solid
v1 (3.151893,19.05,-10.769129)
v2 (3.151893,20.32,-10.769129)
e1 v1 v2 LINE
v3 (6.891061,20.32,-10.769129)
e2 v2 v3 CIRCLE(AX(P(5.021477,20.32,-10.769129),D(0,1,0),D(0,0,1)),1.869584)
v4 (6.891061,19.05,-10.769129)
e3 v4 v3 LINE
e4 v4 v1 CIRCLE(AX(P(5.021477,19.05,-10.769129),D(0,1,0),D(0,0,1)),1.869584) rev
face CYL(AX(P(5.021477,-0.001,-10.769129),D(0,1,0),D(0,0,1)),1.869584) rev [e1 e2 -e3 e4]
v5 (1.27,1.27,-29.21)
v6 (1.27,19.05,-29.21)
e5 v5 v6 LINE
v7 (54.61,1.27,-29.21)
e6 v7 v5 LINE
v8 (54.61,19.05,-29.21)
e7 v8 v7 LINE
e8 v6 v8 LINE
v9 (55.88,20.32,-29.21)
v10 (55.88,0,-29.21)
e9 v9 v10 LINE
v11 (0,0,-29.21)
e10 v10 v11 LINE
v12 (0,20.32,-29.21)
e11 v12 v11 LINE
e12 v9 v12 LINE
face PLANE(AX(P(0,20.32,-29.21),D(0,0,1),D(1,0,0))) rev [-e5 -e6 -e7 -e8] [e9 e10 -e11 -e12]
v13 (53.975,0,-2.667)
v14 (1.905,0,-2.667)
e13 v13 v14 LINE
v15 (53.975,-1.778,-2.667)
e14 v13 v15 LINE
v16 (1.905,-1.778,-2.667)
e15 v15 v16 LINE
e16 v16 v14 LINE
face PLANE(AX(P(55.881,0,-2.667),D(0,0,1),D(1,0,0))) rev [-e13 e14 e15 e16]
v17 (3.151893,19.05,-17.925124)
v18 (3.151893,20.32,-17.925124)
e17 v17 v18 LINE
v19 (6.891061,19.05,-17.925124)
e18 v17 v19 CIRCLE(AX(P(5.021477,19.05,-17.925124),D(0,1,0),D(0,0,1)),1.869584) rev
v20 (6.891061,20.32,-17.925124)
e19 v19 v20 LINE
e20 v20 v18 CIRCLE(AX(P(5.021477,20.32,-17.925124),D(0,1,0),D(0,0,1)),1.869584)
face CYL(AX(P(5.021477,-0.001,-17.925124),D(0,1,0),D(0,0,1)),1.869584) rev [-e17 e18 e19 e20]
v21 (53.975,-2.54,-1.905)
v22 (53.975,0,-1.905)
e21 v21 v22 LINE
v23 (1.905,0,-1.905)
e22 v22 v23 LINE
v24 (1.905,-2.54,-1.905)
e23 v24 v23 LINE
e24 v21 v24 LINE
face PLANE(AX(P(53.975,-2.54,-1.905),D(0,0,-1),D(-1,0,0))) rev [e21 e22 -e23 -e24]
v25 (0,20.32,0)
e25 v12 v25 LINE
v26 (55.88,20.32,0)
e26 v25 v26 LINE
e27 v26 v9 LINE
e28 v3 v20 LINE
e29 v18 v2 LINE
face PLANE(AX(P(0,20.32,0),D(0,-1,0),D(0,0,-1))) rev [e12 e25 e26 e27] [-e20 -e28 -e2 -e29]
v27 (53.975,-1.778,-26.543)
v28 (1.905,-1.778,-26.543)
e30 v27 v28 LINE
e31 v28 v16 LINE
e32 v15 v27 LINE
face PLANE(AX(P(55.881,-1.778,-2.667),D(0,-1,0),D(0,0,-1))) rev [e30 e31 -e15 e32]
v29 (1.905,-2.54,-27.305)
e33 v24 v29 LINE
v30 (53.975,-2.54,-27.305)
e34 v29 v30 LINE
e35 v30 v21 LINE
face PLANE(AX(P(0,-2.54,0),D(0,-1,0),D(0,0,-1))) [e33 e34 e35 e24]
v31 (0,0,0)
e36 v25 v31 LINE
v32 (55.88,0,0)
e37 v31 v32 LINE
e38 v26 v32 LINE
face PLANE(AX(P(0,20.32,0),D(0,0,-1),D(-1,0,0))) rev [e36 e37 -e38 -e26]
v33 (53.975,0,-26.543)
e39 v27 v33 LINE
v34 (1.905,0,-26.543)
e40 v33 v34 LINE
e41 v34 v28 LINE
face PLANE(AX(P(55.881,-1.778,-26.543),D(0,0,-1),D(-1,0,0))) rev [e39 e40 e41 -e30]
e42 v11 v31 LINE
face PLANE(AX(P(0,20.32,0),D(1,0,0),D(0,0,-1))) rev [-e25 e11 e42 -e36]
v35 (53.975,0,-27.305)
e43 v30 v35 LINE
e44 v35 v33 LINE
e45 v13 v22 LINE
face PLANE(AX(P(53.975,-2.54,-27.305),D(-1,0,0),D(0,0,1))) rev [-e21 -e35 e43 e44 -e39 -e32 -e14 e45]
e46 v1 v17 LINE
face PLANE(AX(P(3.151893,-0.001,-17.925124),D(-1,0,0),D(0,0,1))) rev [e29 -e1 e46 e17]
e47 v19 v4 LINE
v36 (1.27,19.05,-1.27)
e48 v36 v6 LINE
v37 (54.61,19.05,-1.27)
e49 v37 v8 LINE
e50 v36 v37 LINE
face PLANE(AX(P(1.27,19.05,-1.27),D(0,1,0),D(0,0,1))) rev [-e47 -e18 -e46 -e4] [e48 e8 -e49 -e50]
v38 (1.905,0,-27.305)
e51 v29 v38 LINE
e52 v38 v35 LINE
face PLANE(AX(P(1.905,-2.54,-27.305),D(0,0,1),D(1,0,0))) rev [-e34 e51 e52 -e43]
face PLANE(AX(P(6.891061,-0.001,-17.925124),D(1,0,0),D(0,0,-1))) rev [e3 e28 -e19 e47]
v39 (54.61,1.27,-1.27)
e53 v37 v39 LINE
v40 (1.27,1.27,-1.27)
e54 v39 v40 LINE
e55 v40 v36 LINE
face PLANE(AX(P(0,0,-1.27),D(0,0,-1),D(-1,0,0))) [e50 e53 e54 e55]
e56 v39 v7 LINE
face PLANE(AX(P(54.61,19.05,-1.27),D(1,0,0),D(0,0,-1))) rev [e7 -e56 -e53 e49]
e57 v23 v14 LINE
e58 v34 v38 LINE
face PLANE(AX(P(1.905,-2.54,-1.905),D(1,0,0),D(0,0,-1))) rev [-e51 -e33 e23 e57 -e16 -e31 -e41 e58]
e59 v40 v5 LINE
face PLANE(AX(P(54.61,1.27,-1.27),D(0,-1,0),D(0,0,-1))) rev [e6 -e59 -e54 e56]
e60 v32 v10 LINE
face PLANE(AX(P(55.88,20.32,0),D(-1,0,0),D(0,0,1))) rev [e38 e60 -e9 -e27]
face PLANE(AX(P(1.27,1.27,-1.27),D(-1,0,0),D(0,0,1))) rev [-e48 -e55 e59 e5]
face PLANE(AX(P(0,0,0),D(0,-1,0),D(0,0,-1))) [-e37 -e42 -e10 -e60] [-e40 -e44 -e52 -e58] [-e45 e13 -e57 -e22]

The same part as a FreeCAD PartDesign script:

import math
import FreeCAD as App
import Part
import Sketcher
from FreeCAD import Vector
Q = App.Units.Quantity

doc = App.newDocument("Part")
params = doc.addObject("Spreadsheet::Sheet", "Params")
for row, (alias, value) in enumerate([
    ("sketch1_width", "2.2 in"),
    ("sketch1_height", "1.15 in"),
    ("pad1_length", "0.8 in"),
    ("sketch2_width", "2.1 in"),
    ("sketch2_height", "0.7 in"),
    ("pocket1_length", "1.1 in"),
    ("sketch4_height", "1 in"),
    ("sketch4_width", "2.05 in"),
    ("pad2_length", "0.1 in"),
    ("sketch5_width", "0.07 in"),
    ("sketch5_height", "0.94 in"),
], start=1):
    params.set(f"A{row}", alias)
    params.set(f"B{row}", "=" + value)
    params.setAlias(f"B{row}", alias)

body = doc.addObject("PartDesign::Body", "Body")

sketch1 = body.newObject("Sketcher::SketchObject", "Sketch")
sketch1.AttachmentSupport = (doc.getObject("XZ_Plane"), [""])
sketch1.MapMode = "FlatFace"
sketch1.addGeometry([
    Part.LineSegment(Vector(0, -29, 0), Vector(0, 0, 0)),
    Part.LineSegment(Vector(0, 0, 0), Vector(56, 0, 0)),
    Part.LineSegment(Vector(56, 0, 0), Vector(56, -29, 0)),
    Part.LineSegment(Vector(56, -29, 0), Vector(0, -29, 0)),
], False)
sketch1.addConstraint([
    Sketcher.Constraint("Coincident", 0, 2, 1, 1),
    Sketcher.Constraint("Coincident", 1, 2, 2, 1),
    Sketcher.Constraint("Coincident", 2, 2, 3, 1),
    Sketcher.Constraint("Coincident", 3, 2, 0, 1),
    Sketcher.Constraint("Vertical", 0),
    Sketcher.Constraint("Horizontal", 1),
    Sketcher.Constraint("Vertical", 2),
    Sketcher.Constraint("Horizontal", 3),
    Sketcher.Constraint("Coincident", 0, 2, -1, 1),
    Sketcher.Constraint("DistanceX", 1, 1, 1, 2, Q("2.2 in")),
    Sketcher.Constraint("DistanceY", 0, 1, 0, 2, Q("1.15 in")),
])
sketch1.setExpression("Constraints[9]", "Params.sketch1_width")
sketch1.setExpression("Constraints[10]", "Params.sketch1_height")
pad1 = body.newObject("PartDesign::Pad", "Pad")
pad1.Profile = sketch1
pad1.setExpression("Length", "Params.pad1_length")
pad1.Reversed = True

sketch2 = body.newObject("Sketcher::SketchObject", "Sketch001")
sketch2.AttachmentSupport = (doc.getObject("XY_Plane"), [""])
sketch2.MapMode = "FlatFace"
sketch2.AttachmentOffset = App.Placement(Vector(0, 0, -1.15 * 25.4), App.Rotation())
sketch2.addGeometry([
    Part.LineSegment(Vector(55, 19, 0), Vector(55, 1, 0)),
    Part.LineSegment(Vector(55, 1, 0), Vector(1, 1, 0)),
    Part.LineSegment(Vector(1, 1, 0), Vector(1, 19, 0)),
    Part.LineSegment(Vector(1, 19, 0), Vector(55, 19, 0)),
], False)
sketch2.addConstraint([
    Sketcher.Constraint("Coincident", 0, 2, 1, 1),
    Sketcher.Constraint("Coincident", 1, 2, 2, 1),
    Sketcher.Constraint("Coincident", 2, 2, 3, 1),
    Sketcher.Constraint("Coincident", 3, 2, 0, 1),
    Sketcher.Constraint("Vertical", 0),
    Sketcher.Constraint("Horizontal", 1),
    Sketcher.Constraint("Vertical", 2),
    Sketcher.Constraint("Horizontal", 3),
    Sketcher.Constraint("DistanceX", 1, 2, 1, 1, Q("2.1 in")),
    Sketcher.Constraint("DistanceY", 0, 2, 0, 1, Q("0.7 in")),
    Sketcher.Constraint("DistanceX", -1, 1, 0, 2, Q("2.15 in")),
    Sketcher.Constraint("DistanceY", -1, 1, 0, 2, Q("0.05 in")),
])
sketch2.setExpression("Constraints[8]", "Params.sketch2_width")
sketch2.setExpression("Constraints[9]", "Params.sketch2_height")
pocket1 = body.newObject("PartDesign::Pocket", "Pocket")
pocket1.Profile = sketch2
pocket1.setExpression("Length", "Params.pocket1_length")
pocket1.Reversed = True

sketch3 = body.newObject("Sketcher::SketchObject", "Sketch002")
sketch3.AttachmentSupport = (doc.getObject("XZ_Plane"), [""])
sketch3.MapMode = "FlatFace"
sketch3.AttachmentOffset = App.Placement(Vector(0, 0, -0.8 * 25.4), App.Rotation())
sketch3.addGeometry([
    Part.LineSegment(Vector(6.9, -10.8, 0), Vector(6.9, -17.9, 0)),
    Part.ArcOfCircle(Part.Circle(Vector(5, -17.9, 0), Vector(0, 0, 1), 1.9), math.radians(180), math.radians(360)),
    Part.LineSegment(Vector(3.2, -17.9, 0), Vector(3.2, -10.8, 0)),
    Part.ArcOfCircle(Part.Circle(Vector(5, -10.8, 0), Vector(0, 0, 1), 1.9), math.radians(0), math.radians(180)),
], False)
sketch3.addConstraint([
    Sketcher.Constraint("Tangent", 0, 2, 1, 2),
    Sketcher.Constraint("Tangent", 1, 1, 2, 1),
    Sketcher.Constraint("Tangent", 2, 2, 3, 2),
    Sketcher.Constraint("Tangent", 3, 1, 0, 1),
    Sketcher.Constraint("Vertical", 0),
    Sketcher.Constraint("Vertical", 2),
    Sketcher.Constraint("Radius", 1, 1.869584),
    Sketcher.Constraint("DistanceY", 0, 2, 0, 1, 7.155995),
    Sketcher.Constraint("DistanceY", 3, 3, -1, 1, 10.769129),
    Sketcher.Constraint("DistanceX", -1, 1, 0, 2, 6.891061),
])
pocket2 = body.newObject("PartDesign::Pocket", "Pocket001")
pocket2.Profile = sketch3
pocket2.Type = "UpToFirst"
pocket2.Reversed = True

sketch4 = body.newObject("Sketcher::SketchObject", "Sketch003")
sketch4.AttachmentSupport = (doc.getObject("XZ_Plane"), [""])
sketch4.MapMode = "FlatFace"
sketch4.addGeometry([
    Part.LineSegment(Vector(2, -2, 0), Vector(2, -27, 0)),
    Part.LineSegment(Vector(2, -27, 0), Vector(54, -27, 0)),
    Part.LineSegment(Vector(54, -27, 0), Vector(54, -2, 0)),
    Part.LineSegment(Vector(54, -2, 0), Vector(2, -2, 0)),
], False)
sketch4.addConstraint([
    Sketcher.Constraint("Coincident", 0, 2, 1, 1),
    Sketcher.Constraint("Coincident", 1, 2, 2, 1),
    Sketcher.Constraint("Coincident", 2, 2, 3, 1),
    Sketcher.Constraint("Coincident", 3, 2, 0, 1),
    Sketcher.Constraint("Vertical", 0),
    Sketcher.Constraint("Horizontal", 1),
    Sketcher.Constraint("Vertical", 2),
    Sketcher.Constraint("Horizontal", 3),
    Sketcher.Constraint("DistanceY", 0, 2, 0, 1, Q("1 in")),
    Sketcher.Constraint("DistanceX", 1, 1, 1, 2, Q("2.05 in")),
    Sketcher.Constraint("DistanceX", -1, 1, 0, 2, Q("0.075 in")),
    Sketcher.Constraint("DistanceY", 0, 2, -1, 1, Q("1.075 in")),
])
sketch4.setExpression("Constraints[8]", "Params.sketch4_height")
sketch4.setExpression("Constraints[9]", "Params.sketch4_width")
pad2 = body.newObject("PartDesign::Pad", "Pad001")
pad2.Profile = sketch4
pad2.setExpression("Length", "Params.pad2_length")

sketch5 = body.newObject("Sketcher::SketchObject", "Sketch004")
sketch5.AttachmentSupport = (doc.getObject("YZ_Plane"), [""])
sketch5.MapMode = "FlatFace"
sketch5.AttachmentOffset = App.Placement(Vector(0, 0, 0.075 * 25.4), App.Rotation())
sketch5.addGeometry([
    Part.LineSegment(Vector(0, -26.5, 0), Vector(-1.8, -26.5, 0)),
    Part.LineSegment(Vector(-1.8, -26.5, 0), Vector(-1.8, -2.7, 0)),
    Part.LineSegment(Vector(-1.8, -2.7, 0), Vector(0, -2.7, 0)),
    Part.LineSegment(Vector(0, -2.7, 0), Vector(0, -26.5, 0)),
], False)
sketch5.addConstraint([
    Sketcher.Constraint("Coincident", 0, 2, 1, 1),
    Sketcher.Constraint("Coincident", 1, 2, 2, 1),
    Sketcher.Constraint("Coincident", 2, 2, 3, 1),
    Sketcher.Constraint("Coincident", 3, 2, 0, 1),
    Sketcher.Constraint("Horizontal", 0),
    Sketcher.Constraint("Vertical", 1),
    Sketcher.Constraint("Horizontal", 2),
    Sketcher.Constraint("Vertical", 3),
    Sketcher.Constraint("PointOnObject", 2, 2, -2),
    Sketcher.Constraint("DistanceX", 0, 2, 0, 1, Q("0.07 in")),
    Sketcher.Constraint("DistanceY", 1, 1, 1, 2, Q("0.94 in")),
    Sketcher.Constraint("DistanceY", 0, 2, -1, 1, Q("1.045 in")),
])
sketch5.setExpression("Constraints[9]", "Params.sketch5_width")
sketch5.setExpression("Constraints[10]", "Params.sketch5_height")
pocket3 = body.newObject("PartDesign::Pocket", "Pocket002")
pocket3.Profile = sketch5
pocket3.Type = "UpToFirst"
pocket3.Reversed = True

doc.recompute()
